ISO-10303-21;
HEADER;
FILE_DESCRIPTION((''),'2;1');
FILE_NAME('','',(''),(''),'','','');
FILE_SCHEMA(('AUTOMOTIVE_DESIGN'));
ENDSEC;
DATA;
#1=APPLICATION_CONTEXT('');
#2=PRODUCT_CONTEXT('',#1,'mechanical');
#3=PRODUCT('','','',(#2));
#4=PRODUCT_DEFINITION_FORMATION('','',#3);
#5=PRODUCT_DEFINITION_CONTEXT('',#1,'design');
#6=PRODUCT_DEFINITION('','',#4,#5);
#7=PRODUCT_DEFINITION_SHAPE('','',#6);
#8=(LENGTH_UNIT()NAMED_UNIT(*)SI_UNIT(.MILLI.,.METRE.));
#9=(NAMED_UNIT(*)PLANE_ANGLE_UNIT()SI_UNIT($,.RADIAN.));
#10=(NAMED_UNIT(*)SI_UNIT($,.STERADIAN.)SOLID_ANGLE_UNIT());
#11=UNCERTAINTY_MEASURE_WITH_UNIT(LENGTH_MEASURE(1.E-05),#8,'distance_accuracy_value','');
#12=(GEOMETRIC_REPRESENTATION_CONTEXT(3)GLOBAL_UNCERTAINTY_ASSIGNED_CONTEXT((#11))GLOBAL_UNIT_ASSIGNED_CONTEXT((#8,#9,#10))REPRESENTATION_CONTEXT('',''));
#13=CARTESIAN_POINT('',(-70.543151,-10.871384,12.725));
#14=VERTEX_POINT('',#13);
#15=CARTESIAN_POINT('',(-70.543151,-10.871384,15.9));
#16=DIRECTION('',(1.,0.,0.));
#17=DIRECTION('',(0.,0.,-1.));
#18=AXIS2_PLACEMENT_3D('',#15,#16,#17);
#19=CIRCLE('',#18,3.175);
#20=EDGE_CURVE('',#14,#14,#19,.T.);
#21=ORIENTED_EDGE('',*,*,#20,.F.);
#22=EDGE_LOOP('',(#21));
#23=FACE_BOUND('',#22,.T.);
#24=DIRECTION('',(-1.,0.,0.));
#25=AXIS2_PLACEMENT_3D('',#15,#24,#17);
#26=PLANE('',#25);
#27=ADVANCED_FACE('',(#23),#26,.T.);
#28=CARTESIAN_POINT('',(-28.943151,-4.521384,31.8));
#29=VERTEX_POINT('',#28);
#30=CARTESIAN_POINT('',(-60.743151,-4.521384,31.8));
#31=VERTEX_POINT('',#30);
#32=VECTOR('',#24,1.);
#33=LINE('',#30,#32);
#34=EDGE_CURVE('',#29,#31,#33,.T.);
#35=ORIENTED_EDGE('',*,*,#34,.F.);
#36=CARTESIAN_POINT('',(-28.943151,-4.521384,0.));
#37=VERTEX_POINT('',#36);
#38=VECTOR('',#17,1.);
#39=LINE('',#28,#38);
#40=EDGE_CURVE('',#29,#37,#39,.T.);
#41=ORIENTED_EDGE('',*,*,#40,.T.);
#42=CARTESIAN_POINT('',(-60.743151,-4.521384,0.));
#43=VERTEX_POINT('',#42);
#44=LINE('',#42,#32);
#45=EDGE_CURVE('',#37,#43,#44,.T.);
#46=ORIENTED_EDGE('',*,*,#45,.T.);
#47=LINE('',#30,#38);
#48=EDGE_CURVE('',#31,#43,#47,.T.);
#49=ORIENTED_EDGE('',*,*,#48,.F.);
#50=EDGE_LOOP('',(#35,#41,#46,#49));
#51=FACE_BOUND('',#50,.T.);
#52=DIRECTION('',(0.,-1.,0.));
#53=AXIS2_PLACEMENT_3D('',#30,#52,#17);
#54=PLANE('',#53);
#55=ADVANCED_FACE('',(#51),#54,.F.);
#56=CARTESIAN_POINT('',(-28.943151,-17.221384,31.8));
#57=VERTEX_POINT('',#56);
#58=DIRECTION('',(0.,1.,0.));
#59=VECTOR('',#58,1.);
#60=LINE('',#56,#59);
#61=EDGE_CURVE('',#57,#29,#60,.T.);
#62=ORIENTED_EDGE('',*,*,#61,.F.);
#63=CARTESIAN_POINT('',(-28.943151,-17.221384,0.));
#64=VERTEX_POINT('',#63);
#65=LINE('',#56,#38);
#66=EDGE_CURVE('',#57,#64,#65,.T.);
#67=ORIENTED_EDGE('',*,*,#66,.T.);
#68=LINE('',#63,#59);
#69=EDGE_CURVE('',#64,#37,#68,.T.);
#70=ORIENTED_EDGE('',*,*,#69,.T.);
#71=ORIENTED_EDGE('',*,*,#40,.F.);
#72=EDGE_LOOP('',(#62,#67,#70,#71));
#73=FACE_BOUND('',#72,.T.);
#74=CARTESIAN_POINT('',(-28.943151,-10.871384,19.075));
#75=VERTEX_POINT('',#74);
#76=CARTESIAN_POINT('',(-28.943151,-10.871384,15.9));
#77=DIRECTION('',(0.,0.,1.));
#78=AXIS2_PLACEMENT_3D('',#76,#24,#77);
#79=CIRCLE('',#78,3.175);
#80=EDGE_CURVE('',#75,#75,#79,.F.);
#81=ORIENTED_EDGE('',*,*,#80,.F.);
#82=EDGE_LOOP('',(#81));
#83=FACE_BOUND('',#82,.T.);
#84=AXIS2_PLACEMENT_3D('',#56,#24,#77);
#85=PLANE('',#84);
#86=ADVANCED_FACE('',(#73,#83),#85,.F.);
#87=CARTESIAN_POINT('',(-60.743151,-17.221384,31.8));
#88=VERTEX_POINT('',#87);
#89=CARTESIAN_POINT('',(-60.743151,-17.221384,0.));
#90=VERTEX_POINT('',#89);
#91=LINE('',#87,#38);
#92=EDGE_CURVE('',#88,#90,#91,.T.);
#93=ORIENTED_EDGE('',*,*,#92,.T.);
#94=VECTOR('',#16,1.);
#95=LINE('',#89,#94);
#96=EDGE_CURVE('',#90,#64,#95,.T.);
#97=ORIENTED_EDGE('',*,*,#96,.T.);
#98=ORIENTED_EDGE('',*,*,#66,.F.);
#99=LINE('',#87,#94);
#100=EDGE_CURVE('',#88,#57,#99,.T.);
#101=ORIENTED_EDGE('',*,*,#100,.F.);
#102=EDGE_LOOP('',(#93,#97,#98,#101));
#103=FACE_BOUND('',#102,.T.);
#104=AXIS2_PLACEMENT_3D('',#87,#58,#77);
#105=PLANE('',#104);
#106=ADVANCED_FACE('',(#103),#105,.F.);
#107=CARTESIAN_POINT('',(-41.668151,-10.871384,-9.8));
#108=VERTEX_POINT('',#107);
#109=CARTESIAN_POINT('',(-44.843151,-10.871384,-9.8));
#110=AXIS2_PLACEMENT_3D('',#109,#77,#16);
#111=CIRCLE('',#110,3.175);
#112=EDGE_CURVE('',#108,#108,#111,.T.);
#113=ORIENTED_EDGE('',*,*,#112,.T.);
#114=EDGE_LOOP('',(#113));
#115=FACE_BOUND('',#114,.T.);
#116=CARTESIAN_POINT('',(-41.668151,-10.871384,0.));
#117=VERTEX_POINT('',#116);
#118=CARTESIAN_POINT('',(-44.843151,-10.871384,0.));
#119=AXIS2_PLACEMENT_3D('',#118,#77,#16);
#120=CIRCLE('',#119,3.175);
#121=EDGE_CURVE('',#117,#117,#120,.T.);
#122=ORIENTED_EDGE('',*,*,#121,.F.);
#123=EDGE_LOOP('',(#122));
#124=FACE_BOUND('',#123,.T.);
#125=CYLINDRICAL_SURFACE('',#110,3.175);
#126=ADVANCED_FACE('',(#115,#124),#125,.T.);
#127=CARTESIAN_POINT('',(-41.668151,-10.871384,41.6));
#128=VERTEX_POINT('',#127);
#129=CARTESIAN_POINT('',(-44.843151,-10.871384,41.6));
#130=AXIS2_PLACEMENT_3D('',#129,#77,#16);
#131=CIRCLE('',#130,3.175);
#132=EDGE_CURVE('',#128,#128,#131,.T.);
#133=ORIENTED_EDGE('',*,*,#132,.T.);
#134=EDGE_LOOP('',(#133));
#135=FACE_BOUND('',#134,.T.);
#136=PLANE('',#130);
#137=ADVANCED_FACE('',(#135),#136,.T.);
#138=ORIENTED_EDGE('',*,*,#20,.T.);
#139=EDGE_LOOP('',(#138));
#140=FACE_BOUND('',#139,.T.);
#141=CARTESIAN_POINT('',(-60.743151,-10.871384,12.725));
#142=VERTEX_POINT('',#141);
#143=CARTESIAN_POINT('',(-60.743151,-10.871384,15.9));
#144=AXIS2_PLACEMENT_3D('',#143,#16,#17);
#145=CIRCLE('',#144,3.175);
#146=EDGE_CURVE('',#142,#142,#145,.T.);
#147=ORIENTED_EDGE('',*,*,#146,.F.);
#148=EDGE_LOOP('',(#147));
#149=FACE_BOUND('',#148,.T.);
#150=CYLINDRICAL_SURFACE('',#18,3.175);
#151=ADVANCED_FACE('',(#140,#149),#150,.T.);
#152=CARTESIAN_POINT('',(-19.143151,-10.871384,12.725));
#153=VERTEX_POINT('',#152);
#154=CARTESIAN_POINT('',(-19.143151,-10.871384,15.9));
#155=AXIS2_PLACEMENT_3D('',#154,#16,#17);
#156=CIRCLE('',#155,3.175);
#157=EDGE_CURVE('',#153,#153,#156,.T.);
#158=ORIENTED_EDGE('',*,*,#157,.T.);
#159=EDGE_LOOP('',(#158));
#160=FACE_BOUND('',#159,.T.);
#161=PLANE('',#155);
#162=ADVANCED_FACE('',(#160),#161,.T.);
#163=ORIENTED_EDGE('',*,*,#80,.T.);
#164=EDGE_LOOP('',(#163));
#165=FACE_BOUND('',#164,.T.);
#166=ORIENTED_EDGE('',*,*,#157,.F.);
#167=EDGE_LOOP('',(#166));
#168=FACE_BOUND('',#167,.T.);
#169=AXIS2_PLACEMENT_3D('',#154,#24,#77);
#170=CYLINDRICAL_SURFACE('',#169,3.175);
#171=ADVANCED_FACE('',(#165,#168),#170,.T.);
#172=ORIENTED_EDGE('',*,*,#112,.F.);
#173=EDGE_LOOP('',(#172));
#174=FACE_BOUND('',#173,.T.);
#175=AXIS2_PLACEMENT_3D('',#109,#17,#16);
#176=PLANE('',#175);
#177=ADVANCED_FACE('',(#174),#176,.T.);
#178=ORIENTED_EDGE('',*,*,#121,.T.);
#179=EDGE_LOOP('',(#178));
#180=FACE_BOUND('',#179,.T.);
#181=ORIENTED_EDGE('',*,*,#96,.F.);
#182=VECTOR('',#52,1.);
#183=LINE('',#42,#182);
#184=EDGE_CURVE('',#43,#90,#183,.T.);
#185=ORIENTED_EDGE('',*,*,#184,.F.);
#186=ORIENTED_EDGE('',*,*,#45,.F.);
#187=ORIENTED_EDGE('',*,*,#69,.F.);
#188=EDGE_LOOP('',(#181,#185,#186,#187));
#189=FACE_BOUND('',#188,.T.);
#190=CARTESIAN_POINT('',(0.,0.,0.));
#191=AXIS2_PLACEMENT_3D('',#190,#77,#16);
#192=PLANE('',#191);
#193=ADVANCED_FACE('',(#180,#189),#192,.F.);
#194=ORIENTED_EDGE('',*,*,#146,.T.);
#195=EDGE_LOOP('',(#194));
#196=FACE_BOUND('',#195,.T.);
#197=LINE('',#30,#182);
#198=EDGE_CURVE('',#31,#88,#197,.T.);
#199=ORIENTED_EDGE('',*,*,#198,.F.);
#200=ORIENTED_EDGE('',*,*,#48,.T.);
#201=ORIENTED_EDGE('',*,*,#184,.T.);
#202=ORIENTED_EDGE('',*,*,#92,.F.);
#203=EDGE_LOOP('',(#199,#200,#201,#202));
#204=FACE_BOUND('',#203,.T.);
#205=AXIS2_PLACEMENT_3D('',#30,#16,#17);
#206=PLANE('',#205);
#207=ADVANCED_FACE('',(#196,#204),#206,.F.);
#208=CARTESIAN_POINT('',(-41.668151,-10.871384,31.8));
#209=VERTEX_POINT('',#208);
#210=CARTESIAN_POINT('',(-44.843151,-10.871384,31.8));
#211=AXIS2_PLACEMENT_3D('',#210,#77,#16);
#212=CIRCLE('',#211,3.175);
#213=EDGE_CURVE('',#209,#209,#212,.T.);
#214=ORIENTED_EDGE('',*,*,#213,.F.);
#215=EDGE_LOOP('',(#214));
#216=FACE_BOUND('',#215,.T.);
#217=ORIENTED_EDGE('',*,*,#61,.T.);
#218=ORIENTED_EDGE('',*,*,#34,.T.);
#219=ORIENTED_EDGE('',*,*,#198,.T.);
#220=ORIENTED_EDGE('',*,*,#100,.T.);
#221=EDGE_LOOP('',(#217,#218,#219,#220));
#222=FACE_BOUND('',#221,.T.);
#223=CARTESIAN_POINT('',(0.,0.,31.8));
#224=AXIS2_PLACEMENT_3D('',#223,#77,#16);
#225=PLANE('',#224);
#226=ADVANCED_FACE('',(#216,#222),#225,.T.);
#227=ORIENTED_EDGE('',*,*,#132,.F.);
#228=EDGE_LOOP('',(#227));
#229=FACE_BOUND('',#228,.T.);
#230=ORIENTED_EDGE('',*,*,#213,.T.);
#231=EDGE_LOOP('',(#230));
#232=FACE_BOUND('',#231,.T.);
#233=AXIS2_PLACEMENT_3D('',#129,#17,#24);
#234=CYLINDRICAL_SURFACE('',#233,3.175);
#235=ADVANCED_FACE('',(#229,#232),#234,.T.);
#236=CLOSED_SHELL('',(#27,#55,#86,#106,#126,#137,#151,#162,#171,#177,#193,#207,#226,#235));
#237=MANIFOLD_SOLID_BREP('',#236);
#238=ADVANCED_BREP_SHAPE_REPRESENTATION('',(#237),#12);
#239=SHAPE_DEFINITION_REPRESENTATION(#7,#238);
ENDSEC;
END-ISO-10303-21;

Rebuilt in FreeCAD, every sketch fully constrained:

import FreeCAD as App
import Part
import Sketcher

V = App.Vector
Q = App.Units.Quantity

doc = App.newDocument("Part")
body = doc.addObject("PartDesign::Body", "Body")

sketch1 = body.newObject("Sketcher::SketchObject", "Sketch")
sketch1.AttachmentSupport = (doc.getObject("XY_Plane"), [""])
sketch1.MapMode = "FlatFace"
sketch1.addGeometry([
    Part.LineSegment(V(-61, -5, 0), V(-61, -17, 0)),
    Part.LineSegment(V(-61, -17, 0), V(-29, -17, 0)),
    Part.LineSegment(V(-29, -17, 0), V(-29, -5, 0)),
    Part.LineSegment(V(-29, -5, 0), V(-61, -5, 0)),
], False)
sketch1.addConstraint([
    Sketcher.Constraint("Coincident", 0, 2, 1, 1),
    Sketcher.Constraint("Coincident", 1, 2, 2, 1),
    Sketcher.Constraint("Coincident", 2, 2, 3, 1),
    Sketcher.Constraint("Coincident", 3, 2, 0, 1),
    Sketcher.Constraint("Vertical", 0),
    Sketcher.Constraint("Horizontal", 1),
    Sketcher.Constraint("Vertical", 2),
    Sketcher.Constraint("Horizontal", 3),
    Sketcher.Constraint("DistanceX", 1, 1, 1, 2, Q("31.8 mm")),
    Sketcher.Constraint("DistanceY", 0, 2, 0, 1, Q("12.7 mm")),
    Sketcher.Constraint("DistanceX", 0, 2, -1, 1, Q("60.743151 mm")),
    Sketcher.Constraint("DistanceY", 0, 2, -1, 1, Q("17.221384 mm")),
])
pad1 = body.newObject("PartDesign::Pad", "Pad")
pad1.Profile = sketch1
pad1.Length = 31.8

sketch2 = body.newObject("Sketcher::SketchObject", "Sketch001")
sketch2.AttachmentSupport = (doc.getObject("XY_Plane"), [""])
sketch2.MapMode = "FlatFace"
sketch2.AttachmentOffset = App.Placement(V(0, 0, 31.8), App.Rotation())
sketch2.addGeometry(Part.Circle(V(-44.8, -10.9, 0), V(0, 0, 1), 3.2), False)
sketch2.addConstraint([
    Sketcher.Constraint("Diameter", 0, Q("6.35 mm")),
    Sketcher.Constraint("DistanceX", 0, 3, -1, 1, Q("44.843151 mm")),
    Sketcher.Constraint("DistanceY", 0, 3, -1, 1, Q("10.871384 mm")),
])
pad2 = body.newObject("PartDesign::Pad", "Pad001")
pad2.Profile = sketch2
pad2.Length = 9.8
doc.recompute()

datumplane = body.newObject("PartDesign::Plane", "DatumPlane")
datumplane.AttachmentSupport = (doc.getObject("XY_Plane"), [""])
datumplane.MapMode = "FlatFace"
datumplane.AttachmentOffset = App.Placement(V(0, 0, 15.9), App.Rotation())
mirrored = body.newObject("PartDesign::Mirrored", "Mirrored")
mirrored.Originals = [pad2]
mirrored.MirrorPlane = (datumplane, [""])
body.Tip = mirrored

sketch3 = body.newObject("Sketcher::SketchObject", "Sketch002")
sketch3.AttachmentSupport = (doc.getObject("YZ_Plane"), [""])
sketch3.MapMode = "FlatFace"
sketch3.AttachmentOffset = App.Placement(V(0, 0, -28.943151), App.Rotation())
sketch3.addGeometry(Part.Circle(V(-10.9, 15.9, 0), V(0, 0, 1), 3.2), False)
sketch3.addConstraint([
    Sketcher.Constraint("Diameter", 0, Q("6.35 mm")),
    Sketcher.Constraint("DistanceY", -1, 1, 0, 3, Q("15.9 mm")),
    Sketcher.Constraint("DistanceX", 0, 3, -1, 1, Q("10.871384 mm")),
])
pad3 = body.newObject("PartDesign::Pad", "Pad002")
pad3.Profile = sketch3
pad3.Length = 9.8
doc.recompute()

datumplane2 = body.newObject("PartDesign::Plane", "DatumPlane001")
datumplane2.AttachmentSupport = (doc.getObject("YZ_Plane"), [""])
datumplane2.MapMode = "FlatFace"
datumplane2.AttachmentOffset = App.Placement(V(0, 0, -44.843151), App.Rotation())
mirrored2 = body.newObject("PartDesign::Mirrored", "Mirrored001")
mirrored2.Originals = [pad3]
mirrored2.MirrorPlane = (datumplane2, [""])
body.Tip = mirrored2

doc.recompute()
